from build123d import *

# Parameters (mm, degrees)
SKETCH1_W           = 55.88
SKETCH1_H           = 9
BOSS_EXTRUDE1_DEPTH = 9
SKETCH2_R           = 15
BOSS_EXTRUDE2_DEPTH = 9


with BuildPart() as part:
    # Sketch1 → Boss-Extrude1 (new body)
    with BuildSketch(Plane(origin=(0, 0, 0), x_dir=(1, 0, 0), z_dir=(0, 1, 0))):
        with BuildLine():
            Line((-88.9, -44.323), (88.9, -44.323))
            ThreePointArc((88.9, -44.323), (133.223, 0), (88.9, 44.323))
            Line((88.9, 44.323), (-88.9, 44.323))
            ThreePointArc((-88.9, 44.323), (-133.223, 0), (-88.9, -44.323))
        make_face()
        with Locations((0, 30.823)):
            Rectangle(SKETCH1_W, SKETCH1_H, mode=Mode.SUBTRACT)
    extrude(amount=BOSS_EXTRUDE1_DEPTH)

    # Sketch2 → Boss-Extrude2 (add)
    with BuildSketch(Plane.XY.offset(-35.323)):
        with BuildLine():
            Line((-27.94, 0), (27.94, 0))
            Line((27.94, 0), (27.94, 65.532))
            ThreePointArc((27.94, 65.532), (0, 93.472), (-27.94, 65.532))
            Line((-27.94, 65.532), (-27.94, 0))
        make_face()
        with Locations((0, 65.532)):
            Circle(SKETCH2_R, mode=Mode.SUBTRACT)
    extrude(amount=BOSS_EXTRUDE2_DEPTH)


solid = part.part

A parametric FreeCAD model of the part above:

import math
import FreeCAD as App
import Part
import Sketcher

V = App.Vector
Q = App.Units.Quantity


def add_polygon(sketch, points):
    """Adds a closed chain of lines whose ends are joined by coincident constraints."""
    first, n = sketch.GeometryCount, len(points)
    for a, b in zip(points, points[1:] + points[:1]):
        sketch.addGeometry(Part.LineSegment(App.Vector(*a, 0), App.Vector(*b, 0)), False)
    for i in range(n):
        sketch.addConstraint(Sketcher.Constraint("Coincident", first + i, 2, first + (i + 1) % n, 1))

doc = App.newDocument("Part")
body = doc.addObject("PartDesign::Body", "Body")

sketch1 = body.newObject("Sketcher::SketchObject", "Sketch")
sketch1.AttachmentSupport = (doc.getObject("XZ_Plane"), [""])
sketch1.MapMode = "FlatFace"
sketch1.addGeometry(Part.LineSegment(V(-89, 44, 0), V(89, 44, 0)), False)
sketch1.addGeometry(Part.ArcOfCircle(Part.Circle(V(89, 0, 0), V(0, 0, 1), 44), math.radians(-90), math.radians(90)), False)
sketch1.addGeometry(Part.LineSegment(V(89, -44, 0), V(-89, -44, 0)), False)
sketch1.addGeometry(Part.ArcOfCircle(Part.Circle(V(-89, 0, 0), V(0, 0, 1), 44), math.radians(90), math.radians(270)), False)
add_polygon(sketch1, [(28, -26), (-28, -26), (-28, -35), (28, -35)])
sketch1.addConstraint(Sketcher.Constraint("Tangent", 0, 2, 1, 2))
sketch1.addConstraint(Sketcher.Constraint("Tangent", 1, 1, 2, 1))
sketch1.addConstraint(Sketcher.Constraint("Tangent", 2, 2, 3, 2))
sketch1.addConstraint(Sketcher.Constraint("Tangent", 3, 1, 0, 1))
sketch1.addConstraint(Sketcher.Constraint("Horizontal", 0))
sketch1.addConstraint(Sketcher.Constraint("Horizontal", 2))
sketch1.addConstraint(Sketcher.Constraint("Horizontal", 4))
sketch1.addConstraint(Sketcher.Constraint("Vertical", 5))
sketch1.addConstraint(Sketcher.Constraint("Horizontal", 6))
sketch1.addConstraint(Sketcher.Constraint("Vertical", 7))
sketch1.addConstraint(Sketcher.Constraint("Symmetric", 1, 3, 3, 3, -1, 1))
sketch1.addConstraint(Sketcher.Constraint("DistanceX", 0, 1, 0, 2, Q("7 in")))
sketch1.addConstraint(Sketcher.Constraint("DistanceX", 4, 2, 4, 1, Q("2.2 in")))
sketch1.addConstraint(Sketcher.Constraint("Radius", 1, Q("1.745 in")))
sketch1.addConstraint(Sketcher.Constraint("DistanceX", 4, 2, -1, 1, Q("1.1 in")))
sketch1.addConstraint(Sketcher.Constraint("DistanceY", 5, 2, 5, 1, Q("9 mm")))
sketch1.addConstraint(Sketcher.Constraint("DistanceY", 4, 2, -1, 1, Q("26.323 mm")))
pad1 = body.newObject("PartDesign::Pad", "Pad")
pad1.Profile = sketch1
pad1.Length = 9
pad1.Reversed = True

sketch2 = body.newObject("Sketcher::SketchObject", "Sketch001")
sketch2.AttachmentSupport = (doc.getObject("XY_Plane"), [""])
sketch2.MapMode = "FlatFace"
sketch2.AttachmentOffset = App.Placement(V(0, 0, -35.323), App.Rotation())
sketch2.addGeometry(Part.LineSegment(V(-28, 0, 0), V(28, 0, 0)), False)
sketch2.addGeometry(Part.LineSegment(V(28, 0, 0), V(28, 66, 0)), False)
sketch2.addGeometry(Part.ArcOfCircle(Part.Circle(V(0, 66, 0), V(0, 0, 1), 28), math.radians(0), math.radians(180)), False)
sketch2.addGeometry(Part.LineSegment(V(-28, 66, 0), V(-28, 0, 0)), False)
sketch2.addGeometry(Part.Circle(V(0, 66, 0), V(0, 0, 1), 15), False)
sketch2.addConstraint(Sketcher.Constraint("Coincident", 0, 2, 1, 1))
sketch2.addConstraint(Sketcher.Constraint("Tangent", 1, 2, 2, 1))
sketch2.addConstraint(Sketcher.Constraint("Tangent", 2, 2, 3, 1))
sketch2.addConstraint(Sketcher.Constraint("Coincident", 3, 2, 0, 1))
sketch2.addConstraint(Sketcher.Constraint("Horizontal", 0))
sketch2.addConstraint(Sketcher.Constraint("Vertical", 1))
sketch2.addConstraint(Sketcher.Constraint("Vertical", 3))
sketch2.addConstraint(Sketcher.Constraint("Coincident", 4, 3, 2, 3))
sketch2.addConstraint(Sketcher.Constraint("Symmetric", 0, 2, 3, 2, -1, 1))
sketch2.addConstraint(Sketcher.Constraint("Radius", 2, Q("1.1 in")))
sketch2.addConstraint(Sketcher.Constraint("DistanceY", 1, 1, 1, 2, Q("2.58 in")))
sketch2.addConstraint(Sketcher.Constraint("Diameter", 4, Q("30 mm")))
pad2 = body.newObject("PartDesign::Pad", "Pad001")
pad2.Profile = sketch2
pad2.Length = 9

doc.recompute()
